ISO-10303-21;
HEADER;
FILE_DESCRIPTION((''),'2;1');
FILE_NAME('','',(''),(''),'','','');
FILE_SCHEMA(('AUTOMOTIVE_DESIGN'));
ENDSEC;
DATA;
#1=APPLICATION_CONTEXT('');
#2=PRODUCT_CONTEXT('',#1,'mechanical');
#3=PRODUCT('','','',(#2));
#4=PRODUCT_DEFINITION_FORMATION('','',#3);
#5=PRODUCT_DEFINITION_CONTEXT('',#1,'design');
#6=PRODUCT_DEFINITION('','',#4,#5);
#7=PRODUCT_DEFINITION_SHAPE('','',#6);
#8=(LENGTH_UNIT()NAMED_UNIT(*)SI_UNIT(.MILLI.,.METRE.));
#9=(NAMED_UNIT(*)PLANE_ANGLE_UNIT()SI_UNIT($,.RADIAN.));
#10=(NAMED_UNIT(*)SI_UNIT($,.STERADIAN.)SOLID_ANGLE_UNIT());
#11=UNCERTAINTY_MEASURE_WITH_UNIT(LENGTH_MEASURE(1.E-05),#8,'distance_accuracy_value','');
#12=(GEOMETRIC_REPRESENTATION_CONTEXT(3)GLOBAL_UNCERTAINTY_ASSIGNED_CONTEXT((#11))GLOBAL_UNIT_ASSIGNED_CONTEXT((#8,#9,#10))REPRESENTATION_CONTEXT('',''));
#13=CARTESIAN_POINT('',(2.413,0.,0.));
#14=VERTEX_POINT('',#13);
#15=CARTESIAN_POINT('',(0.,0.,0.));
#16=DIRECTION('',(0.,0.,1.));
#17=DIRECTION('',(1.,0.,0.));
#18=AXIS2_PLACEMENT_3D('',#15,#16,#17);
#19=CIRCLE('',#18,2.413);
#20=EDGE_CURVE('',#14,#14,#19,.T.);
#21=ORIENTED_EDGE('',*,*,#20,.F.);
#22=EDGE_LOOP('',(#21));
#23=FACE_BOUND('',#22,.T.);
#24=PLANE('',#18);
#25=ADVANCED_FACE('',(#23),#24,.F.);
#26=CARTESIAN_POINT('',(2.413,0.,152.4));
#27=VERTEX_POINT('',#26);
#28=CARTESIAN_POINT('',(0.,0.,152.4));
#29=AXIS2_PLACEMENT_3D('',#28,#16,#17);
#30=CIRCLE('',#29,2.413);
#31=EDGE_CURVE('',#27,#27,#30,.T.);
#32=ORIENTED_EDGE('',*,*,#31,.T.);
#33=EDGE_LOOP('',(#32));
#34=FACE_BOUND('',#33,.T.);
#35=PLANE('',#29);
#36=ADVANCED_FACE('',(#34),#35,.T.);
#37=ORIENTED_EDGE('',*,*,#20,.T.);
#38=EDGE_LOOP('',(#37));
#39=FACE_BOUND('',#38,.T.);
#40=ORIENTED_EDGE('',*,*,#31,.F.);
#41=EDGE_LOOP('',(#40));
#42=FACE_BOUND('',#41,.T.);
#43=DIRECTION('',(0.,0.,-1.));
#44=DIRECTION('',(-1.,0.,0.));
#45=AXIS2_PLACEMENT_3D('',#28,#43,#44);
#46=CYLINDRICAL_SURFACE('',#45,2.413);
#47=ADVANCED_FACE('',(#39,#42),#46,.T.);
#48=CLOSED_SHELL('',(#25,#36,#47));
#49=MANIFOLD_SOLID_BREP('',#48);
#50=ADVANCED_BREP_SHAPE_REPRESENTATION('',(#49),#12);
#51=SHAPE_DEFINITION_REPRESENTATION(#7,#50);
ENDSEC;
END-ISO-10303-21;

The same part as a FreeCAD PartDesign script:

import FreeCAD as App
import Part
import Sketcher
Q = App.Units.Quantity

doc = App.newDocument("Part")
body = doc.addObject("PartDesign::Body", "Body")

sketch1 = body.newObject("Sketcher::SketchObject", "Sketch")
sketch1.AttachmentSupport = (doc.getObject("XY_Plane"), [""])
sketch1.MapMode = "FlatFace"
sketch1.addGeometry(Part.Circle(App.Vector(0, 0, 0), App.Vector(0, 0, 1), 2.4), False)
sketch1.addConstraint(Sketcher.Constraint("Coincident", 0, 3, -1, 1))
sketch1.addConstraint(Sketcher.Constraint("Diameter", 0, Q("0.19 in")))
pad1 = body.newObject("PartDesign::Pad", "Pad")
pad1.Profile = sketch1
pad1.Length = Q("6 in")

doc.recompute()
